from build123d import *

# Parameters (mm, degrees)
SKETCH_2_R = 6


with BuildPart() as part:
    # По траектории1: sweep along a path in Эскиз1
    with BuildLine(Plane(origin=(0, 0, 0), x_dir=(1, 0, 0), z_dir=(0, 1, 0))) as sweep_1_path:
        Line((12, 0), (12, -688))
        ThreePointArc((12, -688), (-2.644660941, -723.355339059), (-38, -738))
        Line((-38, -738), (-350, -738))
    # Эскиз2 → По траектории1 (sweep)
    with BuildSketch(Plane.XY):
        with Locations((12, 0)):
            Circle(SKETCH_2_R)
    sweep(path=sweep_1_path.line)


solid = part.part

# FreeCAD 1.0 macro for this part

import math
import FreeCAD as App
import Part
import Sketcher

V = App.Vector
Q = App.Units.Quantity

doc = App.newDocument("Part")
body = doc.addObject("PartDesign::Body", "Body")

sketch1 = body.newObject("Sketcher::SketchObject", "Sketch")
sketch1.AttachmentSupport = (doc.getObject("XY_Plane"), [""])
sketch1.MapMode = "FlatFace"
sketch1.addGeometry(Part.Circle(V(12, 0, 0), V(0, 0, 1), 6), False)
sketch1.addConstraint([
    Sketcher.Constraint("PointOnObject", 0, 3, -1),
    Sketcher.Constraint("Diameter", 0, Q("12 mm")),
    Sketcher.Constraint("DistanceX", -1, 1, 0, 3, Q("12 mm")),
])

sketch2 = body.newObject("Sketcher::SketchObject", "Sketch001")
sketch2.AttachmentSupport = (doc.getObject("XZ_Plane"), [""])
sketch2.MapMode = "FlatFace"
sketch2.addGeometry([
    Part.LineSegment(V(12, 0, 0), V(12, 688, 0)),
    Part.ArcOfCircle(Part.Circle(V(-38, 688, 0), V(0, 0, 1), 50), math.radians(0), math.radians(90)),
    Part.LineSegment(V(-38, 738, 0), V(-350, 738, 0)),
], False)
sketch2.addConstraint([
    Sketcher.Constraint("Tangent", 0, 2, 1, 1),
    Sketcher.Constraint("Tangent", 1, 2, 2, 1),
    Sketcher.Constraint("Vertical", 0),
    Sketcher.Constraint("Horizontal", 2),
    Sketcher.Constraint("PointOnObject", 0, 1, -1),
    Sketcher.Constraint("Radius", 1, Q("50 mm")),
    Sketcher.Constraint("DistanceX", 2, 2, 2, 1, Q("312 mm")),
    Sketcher.Constraint("DistanceY", 0, 1, 0, 2, Q("688 mm")),
    Sketcher.Constraint("DistanceX", 1, 3, -1, 1, Q("38 mm")),
])
doc.recompute()

additivepipe = body.newObject("PartDesign::AdditivePipe", "AdditivePipe")
additivepipe.Profile = sketch1
additivepipe.Spine = (sketch2, ["Edge1", "Edge2", "Edge3"])

doc.recompute()
